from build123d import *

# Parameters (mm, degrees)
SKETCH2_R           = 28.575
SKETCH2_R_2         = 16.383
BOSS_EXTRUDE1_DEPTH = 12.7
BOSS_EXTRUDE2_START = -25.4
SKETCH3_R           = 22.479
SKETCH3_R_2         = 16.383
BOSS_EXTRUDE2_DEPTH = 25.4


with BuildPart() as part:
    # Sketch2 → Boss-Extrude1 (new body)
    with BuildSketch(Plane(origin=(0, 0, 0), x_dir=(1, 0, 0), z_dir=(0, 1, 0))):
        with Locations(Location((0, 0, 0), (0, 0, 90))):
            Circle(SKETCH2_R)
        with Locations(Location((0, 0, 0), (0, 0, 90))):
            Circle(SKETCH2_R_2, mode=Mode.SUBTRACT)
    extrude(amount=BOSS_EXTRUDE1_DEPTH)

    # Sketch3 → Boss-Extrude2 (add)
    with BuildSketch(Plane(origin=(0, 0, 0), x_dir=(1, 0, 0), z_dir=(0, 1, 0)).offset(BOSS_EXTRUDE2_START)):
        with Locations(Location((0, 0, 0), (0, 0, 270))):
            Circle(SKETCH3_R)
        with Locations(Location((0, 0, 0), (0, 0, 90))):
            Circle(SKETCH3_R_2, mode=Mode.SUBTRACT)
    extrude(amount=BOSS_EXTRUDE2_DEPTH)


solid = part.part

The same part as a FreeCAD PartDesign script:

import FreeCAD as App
import Part
import Sketcher
Q = App.Units.Quantity

doc = App.newDocument("Part")
params = doc.addObject("Spreadsheet::Sheet", "Params")
for row, (alias, value) in enumerate([
    ("sketch1_diameter", "2.25 in"),
    ("sketch1_diameter2", "1.29 in"),
    ("pad1_length", "0.5 in"),
    ("sketch2_diameter", "1.77 in"),
    ("sketch2_diameter2", "1.29 in"),
    ("pad2_length", "1 in"),
], start=1):
    params.set(f"A{row}", alias)
    params.set(f"B{row}", "=" + value)
    params.setAlias(f"B{row}", alias)

body = doc.addObject("PartDesign::Body", "Body")

sketch1 = doc.addObject("Sketcher::SketchObject", "Sketch")
body.addObject(sketch1)
sketch1.AttachmentSupport = (doc.XZ_Plane, [""])
sketch1.MapMode = "FlatFace"
sketch1.addGeometry([
    Part.Circle(App.Vector(0, 0, 0), App.Vector(0, 0, 1), 29),
    Part.Circle(App.Vector(0, 0, 0), App.Vector(0, 0, 1), 16),
], False)
sketch1.addConstraint([
    Sketcher.Constraint("Coincident", 0, 3, -1, 1),
    Sketcher.Constraint("Coincident", 1, 3, -1, 1),
    Sketcher.Constraint("Diameter", 0, Q("2.25 in")),
    Sketcher.Constraint("Diameter", 1, Q("1.29 in")),
])
sketch1.setExpression("Constraints[2]", "Params.sketch1_diameter")
sketch1.setExpression("Constraints[3]", "Params.sketch1_diameter2")
pad1 = doc.addObject("PartDesign::Pad", "Pad")
body.addObject(pad1)
pad1.Profile = sketch1
pad1.setExpression("Length", "Params.pad1_length")
pad1.Reversed = True

sketch2 = doc.addObject("Sketcher::SketchObject", "Sketch001")
body.addObject(sketch2)
sketch2.AttachmentSupport = (doc.XZ_Plane, [""])
sketch2.MapMode = "FlatFace"
sketch2.AttachmentOffset = App.Placement(App.Vector(0, 0, 1 * 25.4), App.Rotation())
sketch2.addGeometry([
    Part.Circle(App.Vector(0, 0, 0), App.Vector(0, 0, 1), 22),
    Part.Circle(App.Vector(0, 0, 0), App.Vector(0, 0, 1), 16),
], False)
sketch2.addConstraint([
    Sketcher.Constraint("Coincident", 0, 3, -1, 1),
    Sketcher.Constraint("Coincident", 1, 3, -1, 1),
    Sketcher.Constraint("Diameter", 0, Q("1.77 in")),
    Sketcher.Constraint("Diameter", 1, Q("1.29 in")),
])
sketch2.setExpression("Constraints[2]", "Params.sketch2_diameter")
sketch2.setExpression("Constraints[3]", "Params.sketch2_diameter2")
pad2 = doc.addObject("PartDesign::Pad", "Pad001")
body.addObject(pad2)
pad2.Profile = sketch2
pad2.setExpression("Length", "Params.pad2_length")
pad2.Reversed = True

doc.recompute()
